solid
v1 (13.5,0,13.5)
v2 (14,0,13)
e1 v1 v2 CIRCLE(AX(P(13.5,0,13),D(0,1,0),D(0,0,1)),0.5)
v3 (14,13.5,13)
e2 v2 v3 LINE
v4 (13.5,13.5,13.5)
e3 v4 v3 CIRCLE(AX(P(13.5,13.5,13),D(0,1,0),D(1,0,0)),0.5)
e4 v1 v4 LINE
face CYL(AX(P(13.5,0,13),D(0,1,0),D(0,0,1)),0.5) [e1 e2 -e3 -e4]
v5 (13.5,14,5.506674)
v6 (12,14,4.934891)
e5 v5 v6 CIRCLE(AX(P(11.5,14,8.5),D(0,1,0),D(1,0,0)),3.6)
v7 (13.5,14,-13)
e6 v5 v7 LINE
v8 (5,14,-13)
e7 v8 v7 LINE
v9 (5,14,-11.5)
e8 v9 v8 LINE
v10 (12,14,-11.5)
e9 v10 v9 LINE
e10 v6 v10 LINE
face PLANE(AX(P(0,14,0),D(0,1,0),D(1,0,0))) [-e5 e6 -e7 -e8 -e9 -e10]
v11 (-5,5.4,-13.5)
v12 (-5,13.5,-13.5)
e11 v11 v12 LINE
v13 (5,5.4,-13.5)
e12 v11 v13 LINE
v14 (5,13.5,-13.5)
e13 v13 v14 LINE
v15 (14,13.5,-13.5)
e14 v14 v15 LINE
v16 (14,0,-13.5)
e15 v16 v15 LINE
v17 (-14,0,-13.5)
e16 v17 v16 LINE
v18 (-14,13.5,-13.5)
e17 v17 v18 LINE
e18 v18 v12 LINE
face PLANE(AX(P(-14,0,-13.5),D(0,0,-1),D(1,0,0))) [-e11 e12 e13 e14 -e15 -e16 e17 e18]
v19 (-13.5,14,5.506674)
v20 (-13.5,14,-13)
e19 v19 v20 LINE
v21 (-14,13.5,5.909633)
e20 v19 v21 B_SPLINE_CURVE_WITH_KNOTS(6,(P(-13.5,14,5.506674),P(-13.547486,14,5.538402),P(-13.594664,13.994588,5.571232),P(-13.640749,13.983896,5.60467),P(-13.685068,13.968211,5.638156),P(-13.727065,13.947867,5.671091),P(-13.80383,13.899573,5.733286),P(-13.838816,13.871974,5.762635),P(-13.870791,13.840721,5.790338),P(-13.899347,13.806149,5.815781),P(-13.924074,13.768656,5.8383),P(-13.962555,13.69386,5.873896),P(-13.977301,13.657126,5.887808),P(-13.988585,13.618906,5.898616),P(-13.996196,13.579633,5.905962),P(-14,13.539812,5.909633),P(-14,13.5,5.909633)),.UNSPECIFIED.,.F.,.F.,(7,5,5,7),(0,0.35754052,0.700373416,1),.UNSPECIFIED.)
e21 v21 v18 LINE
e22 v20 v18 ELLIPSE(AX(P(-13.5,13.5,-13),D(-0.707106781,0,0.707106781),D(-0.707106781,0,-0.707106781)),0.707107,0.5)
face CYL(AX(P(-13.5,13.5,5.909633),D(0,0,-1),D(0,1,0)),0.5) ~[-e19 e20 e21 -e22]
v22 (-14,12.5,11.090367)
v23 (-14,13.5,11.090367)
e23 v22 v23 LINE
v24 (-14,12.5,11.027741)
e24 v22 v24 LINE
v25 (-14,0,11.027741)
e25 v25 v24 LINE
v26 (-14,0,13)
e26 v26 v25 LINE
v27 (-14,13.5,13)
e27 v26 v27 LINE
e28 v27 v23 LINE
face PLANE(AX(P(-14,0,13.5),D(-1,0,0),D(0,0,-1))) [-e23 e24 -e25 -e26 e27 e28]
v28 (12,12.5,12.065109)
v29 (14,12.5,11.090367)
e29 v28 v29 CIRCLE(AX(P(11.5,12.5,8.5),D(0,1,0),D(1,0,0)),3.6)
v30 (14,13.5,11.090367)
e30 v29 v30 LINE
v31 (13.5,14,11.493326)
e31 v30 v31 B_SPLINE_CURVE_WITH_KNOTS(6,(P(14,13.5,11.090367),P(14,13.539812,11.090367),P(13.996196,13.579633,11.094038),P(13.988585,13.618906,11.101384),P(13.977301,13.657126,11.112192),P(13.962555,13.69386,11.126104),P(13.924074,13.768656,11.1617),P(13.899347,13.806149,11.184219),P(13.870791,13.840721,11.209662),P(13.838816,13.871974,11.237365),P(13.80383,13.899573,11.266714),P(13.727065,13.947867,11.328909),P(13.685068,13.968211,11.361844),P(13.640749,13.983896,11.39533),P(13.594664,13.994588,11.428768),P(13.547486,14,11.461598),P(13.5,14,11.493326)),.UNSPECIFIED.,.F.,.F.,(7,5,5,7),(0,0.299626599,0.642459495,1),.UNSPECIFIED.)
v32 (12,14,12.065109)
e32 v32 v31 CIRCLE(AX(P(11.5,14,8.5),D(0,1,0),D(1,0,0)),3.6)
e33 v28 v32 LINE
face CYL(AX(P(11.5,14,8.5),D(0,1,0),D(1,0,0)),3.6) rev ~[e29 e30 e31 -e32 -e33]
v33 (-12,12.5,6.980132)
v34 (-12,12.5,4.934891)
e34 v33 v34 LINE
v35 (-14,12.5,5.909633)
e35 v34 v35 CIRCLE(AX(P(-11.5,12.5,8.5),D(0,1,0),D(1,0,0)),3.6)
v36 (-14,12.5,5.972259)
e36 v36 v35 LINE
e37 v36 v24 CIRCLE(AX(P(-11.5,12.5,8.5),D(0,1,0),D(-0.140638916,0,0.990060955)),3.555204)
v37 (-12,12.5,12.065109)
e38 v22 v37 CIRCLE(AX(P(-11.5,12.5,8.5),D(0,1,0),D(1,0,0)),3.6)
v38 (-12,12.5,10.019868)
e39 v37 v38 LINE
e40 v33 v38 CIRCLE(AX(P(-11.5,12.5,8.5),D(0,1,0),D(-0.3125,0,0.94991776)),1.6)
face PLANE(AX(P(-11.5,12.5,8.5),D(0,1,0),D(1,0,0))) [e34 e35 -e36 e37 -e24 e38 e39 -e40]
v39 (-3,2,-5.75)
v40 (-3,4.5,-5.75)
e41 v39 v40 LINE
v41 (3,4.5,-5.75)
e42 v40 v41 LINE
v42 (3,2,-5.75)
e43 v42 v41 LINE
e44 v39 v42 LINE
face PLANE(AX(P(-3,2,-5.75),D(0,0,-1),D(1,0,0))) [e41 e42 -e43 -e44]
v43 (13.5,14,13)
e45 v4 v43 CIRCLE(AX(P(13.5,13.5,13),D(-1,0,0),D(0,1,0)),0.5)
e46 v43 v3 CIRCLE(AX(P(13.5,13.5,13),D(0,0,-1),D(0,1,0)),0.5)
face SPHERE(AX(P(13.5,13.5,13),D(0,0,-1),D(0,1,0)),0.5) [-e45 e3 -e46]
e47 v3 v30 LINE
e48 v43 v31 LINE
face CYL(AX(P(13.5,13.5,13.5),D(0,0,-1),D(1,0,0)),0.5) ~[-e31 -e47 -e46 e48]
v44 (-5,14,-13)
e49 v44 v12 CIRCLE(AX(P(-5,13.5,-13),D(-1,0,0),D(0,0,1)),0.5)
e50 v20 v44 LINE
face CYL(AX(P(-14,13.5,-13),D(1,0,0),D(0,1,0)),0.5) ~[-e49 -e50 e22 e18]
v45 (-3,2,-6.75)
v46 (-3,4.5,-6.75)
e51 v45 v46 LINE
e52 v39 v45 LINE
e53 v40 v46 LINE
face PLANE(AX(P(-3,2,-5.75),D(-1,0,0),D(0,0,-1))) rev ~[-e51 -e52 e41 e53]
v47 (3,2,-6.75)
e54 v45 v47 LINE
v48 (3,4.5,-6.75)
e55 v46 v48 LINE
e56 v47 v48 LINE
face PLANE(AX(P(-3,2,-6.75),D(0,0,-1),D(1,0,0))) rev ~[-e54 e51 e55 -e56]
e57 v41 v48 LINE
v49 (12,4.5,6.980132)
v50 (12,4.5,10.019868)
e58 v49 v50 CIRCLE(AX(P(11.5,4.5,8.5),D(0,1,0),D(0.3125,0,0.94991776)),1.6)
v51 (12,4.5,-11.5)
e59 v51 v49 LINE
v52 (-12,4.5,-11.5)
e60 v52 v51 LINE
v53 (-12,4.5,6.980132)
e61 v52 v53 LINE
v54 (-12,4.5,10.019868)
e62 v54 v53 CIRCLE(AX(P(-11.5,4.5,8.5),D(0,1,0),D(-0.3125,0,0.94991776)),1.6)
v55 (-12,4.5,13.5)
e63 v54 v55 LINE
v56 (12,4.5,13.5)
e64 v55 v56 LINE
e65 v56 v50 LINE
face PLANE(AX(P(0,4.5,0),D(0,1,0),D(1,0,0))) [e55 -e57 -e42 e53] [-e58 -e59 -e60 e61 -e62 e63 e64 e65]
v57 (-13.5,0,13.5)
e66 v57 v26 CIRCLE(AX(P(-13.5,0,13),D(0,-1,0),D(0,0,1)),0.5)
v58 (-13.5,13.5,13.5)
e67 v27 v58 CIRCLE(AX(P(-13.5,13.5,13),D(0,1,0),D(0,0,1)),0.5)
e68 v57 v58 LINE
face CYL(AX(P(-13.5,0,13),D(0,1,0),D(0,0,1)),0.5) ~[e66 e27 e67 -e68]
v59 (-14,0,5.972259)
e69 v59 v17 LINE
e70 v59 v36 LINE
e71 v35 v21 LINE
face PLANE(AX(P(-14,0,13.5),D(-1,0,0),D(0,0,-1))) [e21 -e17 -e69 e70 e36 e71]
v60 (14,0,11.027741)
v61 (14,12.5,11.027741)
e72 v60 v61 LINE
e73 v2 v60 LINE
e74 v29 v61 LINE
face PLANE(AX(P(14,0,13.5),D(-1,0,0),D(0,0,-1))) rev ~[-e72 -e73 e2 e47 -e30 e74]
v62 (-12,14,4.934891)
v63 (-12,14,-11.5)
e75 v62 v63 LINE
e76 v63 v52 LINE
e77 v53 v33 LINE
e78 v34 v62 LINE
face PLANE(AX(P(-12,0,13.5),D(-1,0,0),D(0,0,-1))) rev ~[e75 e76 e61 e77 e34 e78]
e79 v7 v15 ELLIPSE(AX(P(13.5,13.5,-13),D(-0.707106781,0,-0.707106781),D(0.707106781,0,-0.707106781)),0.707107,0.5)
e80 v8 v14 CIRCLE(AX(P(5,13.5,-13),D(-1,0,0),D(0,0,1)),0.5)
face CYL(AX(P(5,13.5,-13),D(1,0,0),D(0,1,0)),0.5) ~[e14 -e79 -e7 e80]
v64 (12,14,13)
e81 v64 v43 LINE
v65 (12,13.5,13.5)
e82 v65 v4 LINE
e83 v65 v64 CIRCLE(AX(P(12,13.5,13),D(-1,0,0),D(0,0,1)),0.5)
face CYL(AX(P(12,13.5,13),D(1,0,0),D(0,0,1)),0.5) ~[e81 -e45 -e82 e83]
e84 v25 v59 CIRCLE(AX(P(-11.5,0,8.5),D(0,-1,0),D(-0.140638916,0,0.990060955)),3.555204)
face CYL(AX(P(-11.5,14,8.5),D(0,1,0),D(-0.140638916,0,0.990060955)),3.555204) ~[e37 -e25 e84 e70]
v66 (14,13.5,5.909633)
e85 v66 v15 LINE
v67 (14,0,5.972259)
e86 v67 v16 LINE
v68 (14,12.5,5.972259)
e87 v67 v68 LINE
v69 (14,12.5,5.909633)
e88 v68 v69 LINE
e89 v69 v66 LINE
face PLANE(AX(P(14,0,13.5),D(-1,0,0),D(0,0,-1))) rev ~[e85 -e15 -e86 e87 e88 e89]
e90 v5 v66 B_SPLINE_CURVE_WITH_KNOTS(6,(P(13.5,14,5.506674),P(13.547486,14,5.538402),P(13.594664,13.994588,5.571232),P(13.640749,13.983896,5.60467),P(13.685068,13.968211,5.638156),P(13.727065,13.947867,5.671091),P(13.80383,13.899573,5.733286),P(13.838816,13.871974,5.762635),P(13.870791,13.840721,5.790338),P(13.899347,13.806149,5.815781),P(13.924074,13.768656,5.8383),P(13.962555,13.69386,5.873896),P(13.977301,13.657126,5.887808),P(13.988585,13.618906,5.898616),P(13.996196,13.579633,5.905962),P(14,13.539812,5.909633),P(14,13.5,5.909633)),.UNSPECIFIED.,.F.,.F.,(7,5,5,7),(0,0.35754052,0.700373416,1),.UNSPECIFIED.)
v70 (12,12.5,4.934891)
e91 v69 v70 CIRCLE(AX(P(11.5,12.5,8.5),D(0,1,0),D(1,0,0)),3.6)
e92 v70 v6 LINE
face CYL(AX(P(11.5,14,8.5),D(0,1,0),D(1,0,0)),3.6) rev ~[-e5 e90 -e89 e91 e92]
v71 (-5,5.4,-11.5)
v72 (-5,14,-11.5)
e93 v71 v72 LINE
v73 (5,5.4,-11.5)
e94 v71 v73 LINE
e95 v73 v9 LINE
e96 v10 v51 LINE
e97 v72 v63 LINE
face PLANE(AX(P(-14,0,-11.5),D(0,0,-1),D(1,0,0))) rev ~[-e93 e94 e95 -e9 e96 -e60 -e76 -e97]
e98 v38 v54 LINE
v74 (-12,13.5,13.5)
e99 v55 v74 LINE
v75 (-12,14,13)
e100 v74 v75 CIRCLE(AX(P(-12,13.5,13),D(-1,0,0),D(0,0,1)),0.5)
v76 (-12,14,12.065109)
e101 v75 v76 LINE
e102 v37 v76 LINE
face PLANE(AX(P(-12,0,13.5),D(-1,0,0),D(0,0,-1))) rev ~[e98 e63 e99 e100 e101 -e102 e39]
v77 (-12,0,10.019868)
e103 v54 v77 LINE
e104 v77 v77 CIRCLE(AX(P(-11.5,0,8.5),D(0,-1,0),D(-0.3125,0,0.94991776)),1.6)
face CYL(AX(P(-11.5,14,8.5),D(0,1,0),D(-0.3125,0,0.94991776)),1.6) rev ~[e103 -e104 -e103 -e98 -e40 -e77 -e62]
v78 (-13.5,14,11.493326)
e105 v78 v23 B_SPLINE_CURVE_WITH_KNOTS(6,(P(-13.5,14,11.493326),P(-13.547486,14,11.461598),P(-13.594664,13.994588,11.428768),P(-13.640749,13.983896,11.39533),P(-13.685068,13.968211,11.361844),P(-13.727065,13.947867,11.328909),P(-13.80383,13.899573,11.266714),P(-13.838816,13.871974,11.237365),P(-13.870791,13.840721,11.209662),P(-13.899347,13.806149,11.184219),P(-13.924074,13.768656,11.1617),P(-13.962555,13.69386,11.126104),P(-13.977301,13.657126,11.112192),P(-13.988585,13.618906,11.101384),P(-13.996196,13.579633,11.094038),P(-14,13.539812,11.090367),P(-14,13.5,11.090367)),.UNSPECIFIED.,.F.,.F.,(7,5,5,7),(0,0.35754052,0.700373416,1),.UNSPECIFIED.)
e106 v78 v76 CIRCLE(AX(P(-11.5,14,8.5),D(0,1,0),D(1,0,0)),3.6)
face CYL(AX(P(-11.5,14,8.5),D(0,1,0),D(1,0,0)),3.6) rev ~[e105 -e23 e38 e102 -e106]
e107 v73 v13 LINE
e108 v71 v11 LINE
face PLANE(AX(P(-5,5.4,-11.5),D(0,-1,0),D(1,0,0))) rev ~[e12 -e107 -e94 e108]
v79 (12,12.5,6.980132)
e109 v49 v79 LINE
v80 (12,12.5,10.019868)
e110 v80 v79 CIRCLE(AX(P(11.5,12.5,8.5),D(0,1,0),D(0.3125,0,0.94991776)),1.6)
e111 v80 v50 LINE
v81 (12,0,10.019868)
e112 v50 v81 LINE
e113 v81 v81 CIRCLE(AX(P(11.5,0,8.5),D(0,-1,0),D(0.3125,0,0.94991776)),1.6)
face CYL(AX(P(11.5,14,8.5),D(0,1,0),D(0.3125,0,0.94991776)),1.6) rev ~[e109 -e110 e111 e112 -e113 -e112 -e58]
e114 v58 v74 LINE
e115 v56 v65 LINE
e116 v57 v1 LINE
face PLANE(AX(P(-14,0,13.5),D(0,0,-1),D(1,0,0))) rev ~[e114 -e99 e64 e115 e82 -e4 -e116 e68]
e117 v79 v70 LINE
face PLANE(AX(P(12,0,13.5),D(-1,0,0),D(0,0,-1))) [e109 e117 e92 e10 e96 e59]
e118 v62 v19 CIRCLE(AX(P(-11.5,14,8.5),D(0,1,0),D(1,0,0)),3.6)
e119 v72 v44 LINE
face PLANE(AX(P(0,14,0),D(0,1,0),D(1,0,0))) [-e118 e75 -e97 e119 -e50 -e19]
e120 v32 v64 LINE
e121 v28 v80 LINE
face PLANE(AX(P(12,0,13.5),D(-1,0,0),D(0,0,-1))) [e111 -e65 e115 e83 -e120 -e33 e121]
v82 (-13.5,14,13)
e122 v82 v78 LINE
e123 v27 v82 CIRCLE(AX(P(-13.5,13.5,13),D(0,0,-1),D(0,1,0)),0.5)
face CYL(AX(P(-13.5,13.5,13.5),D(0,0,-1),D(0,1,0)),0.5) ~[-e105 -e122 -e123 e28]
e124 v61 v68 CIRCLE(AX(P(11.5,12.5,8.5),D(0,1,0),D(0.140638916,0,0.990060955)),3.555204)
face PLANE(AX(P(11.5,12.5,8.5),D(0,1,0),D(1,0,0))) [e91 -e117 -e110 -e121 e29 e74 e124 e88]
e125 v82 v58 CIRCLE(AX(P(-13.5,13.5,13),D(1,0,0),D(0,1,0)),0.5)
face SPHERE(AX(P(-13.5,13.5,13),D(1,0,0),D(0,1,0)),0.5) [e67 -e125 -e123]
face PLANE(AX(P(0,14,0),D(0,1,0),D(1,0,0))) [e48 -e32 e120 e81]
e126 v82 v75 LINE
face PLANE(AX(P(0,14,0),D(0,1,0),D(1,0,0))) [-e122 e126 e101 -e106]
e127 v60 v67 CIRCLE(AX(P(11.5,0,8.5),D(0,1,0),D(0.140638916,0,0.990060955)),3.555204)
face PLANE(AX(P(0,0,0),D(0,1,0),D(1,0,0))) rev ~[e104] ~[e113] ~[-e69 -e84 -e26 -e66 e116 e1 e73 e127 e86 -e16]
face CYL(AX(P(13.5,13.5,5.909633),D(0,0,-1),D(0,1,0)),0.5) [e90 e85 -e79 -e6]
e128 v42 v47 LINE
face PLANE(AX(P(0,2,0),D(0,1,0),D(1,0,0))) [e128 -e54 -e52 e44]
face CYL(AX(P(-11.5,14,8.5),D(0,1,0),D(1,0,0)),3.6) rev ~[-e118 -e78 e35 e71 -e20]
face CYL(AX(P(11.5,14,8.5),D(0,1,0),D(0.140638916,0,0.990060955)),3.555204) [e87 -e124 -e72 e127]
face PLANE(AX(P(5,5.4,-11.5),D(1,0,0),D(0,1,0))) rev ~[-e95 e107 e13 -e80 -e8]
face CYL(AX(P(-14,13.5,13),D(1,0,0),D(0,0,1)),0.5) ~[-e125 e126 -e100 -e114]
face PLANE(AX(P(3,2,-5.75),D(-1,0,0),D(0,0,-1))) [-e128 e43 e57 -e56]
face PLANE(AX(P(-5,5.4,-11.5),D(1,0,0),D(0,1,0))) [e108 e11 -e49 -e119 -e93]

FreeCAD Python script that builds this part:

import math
import FreeCAD as App
import Part
import Sketcher
Q = App.Units.Quantity


def edges_at(feature, points):
    """Names of the edges that pass closest to the given points."""
    edges = feature.Shape.Edges
    near = lambda p: min(range(len(edges)), key=lambda i: edges[i].distToShape(Part.Vertex(*p))[0])
    return sorted({f"Edge{near(p) + 1}" for p in points})


def faces_at(feature, points):
    """Names of the faces that lie closest to the given points."""
    faces = feature.Shape.Faces
    near = lambda p: min(range(len(faces)), key=lambda i: faces[i].distToShape(Part.Vertex(*p))[0])
    return sorted({f"Face{near(p) + 1}" for p in points})


def add_polygon(sketch, points):
    """Adds a closed chain of lines whose ends are joined by coincident constraints."""
    first, n = sketch.GeometryCount, len(points)
    for a, b in zip(points, points[1:] + points[:1]):
        sketch.addGeometry(Part.LineSegment(App.Vector(*a, 0), App.Vector(*b, 0)), False)
    for i in range(n):
        sketch.addConstraint(Sketcher.Constraint("Coincident", first + i, 2, first + (i + 1) % n, 1))

doc = App.newDocument("Part")
body = doc.addObject("PartDesign::Body", "Body")

sketch1 = body.newObject("Sketcher::SketchObject", "Sketch")
sketch1.AttachmentSupport = (doc.getObject("XZ_Plane"), [""])
sketch1.MapMode = "FlatFace"
add_polygon(sketch1, [(-14, -14), (-14, 14), (14, 14), (14, -14)])
sketch1.addConstraint([
    Sketcher.Constraint("Vertical", 0),
    Sketcher.Constraint("Horizontal", 1),
    Sketcher.Constraint("Vertical", 2),
    Sketcher.Constraint("Horizontal", 3),
    Sketcher.Constraint("Symmetric", 0, 2, 2, 2, -1, 1),
    Sketcher.Constraint("DistanceX", 1, 1, 1, 2, Q("28 mm")),
    Sketcher.Constraint("DistanceY", 0, 1, 0, 2, Q("27 mm")),
])
pad1 = body.newObject("PartDesign::Pad", "Pad")
pad1.Profile = sketch1
pad1.Length = 14
pad1.Reversed = True
doc.recompute()

thickness = body.newObject("PartDesign::Thickness", "Thickness")
thickness.Base = (pad1, faces_at(pad1, [(0, 14, 0)]))
thickness.Value = 2
thickness.Reversed = True
thickness.Join = "Intersection"

sketch2 = body.newObject("Sketcher::SketchObject", "Sketch001")
sketch2.AttachmentSupport = (doc.getObject("XZ_Plane"), [""])
sketch2.MapMode = "FlatFace"
sketch2.AttachmentOffset = App.Placement(App.Vector(0, 0, -2), App.Rotation())
add_polygon(sketch2, [(-12, -11.5), (-12, 11.5), (12, 11.5), (12, -11.5)])
add_polygon(sketch2, [(3, -5.8), (-3, -5.8), (-3, -6.8), (3, -6.8)])
sketch2.addConstraint([
    Sketcher.Constraint("Vertical", 0),
    Sketcher.Constraint("Horizontal", 1),
    Sketcher.Constraint("Vertical", 2),
    Sketcher.Constraint("Horizontal", 3),
    Sketcher.Constraint("Horizontal", 4),
    Sketcher.Constraint("Vertical", 5),
    Sketcher.Constraint("Horizontal", 6),
    Sketcher.Constraint("Vertical", 7),
    Sketcher.Constraint("Symmetric", 0, 2, 2, 2, -1, 1),
    Sketcher.Constraint("DistanceX", 1, 1, 1, 2, Q("24 mm")),
    Sketcher.Constraint("DistanceX", 4, 2, 4, 1, Q("6 mm")),
    Sketcher.Constraint("DistanceY", 0, 1, 0, 2, Q("23 mm")),
    Sketcher.Constraint("DistanceY", 5, 2, 5, 1, Q("1 mm")),
    Sketcher.Constraint("DistanceX", 4, 2, -1, 1, Q("3 mm")),
    Sketcher.Constraint("DistanceY", 4, 2, -1, 1, Q("5.75 mm")),
])
pad2 = body.newObject("PartDesign::Pad", "Pad001")
pad2.Profile = sketch2
pad2.Length = 2.5
pad2.Reversed = True

sketch3 = body.newObject("Sketcher::SketchObject", "Sketch002")
sketch3.AttachmentSupport = (doc.getObject("XY_Plane"), [""])
sketch3.MapMode = "FlatFace"
sketch3.AttachmentOffset = App.Placement(App.Vector(0, 0, 13.5), App.Rotation())
add_polygon(sketch3, [(-12, 14), (-12, 4), (12, 4), (12, 14)])
sketch3.addConstraint([
    Sketcher.Constraint("Vertical", 0),
    Sketcher.Constraint("Horizontal", 1),
    Sketcher.Constraint("Vertical", 2),
    Sketcher.Constraint("Horizontal", 3),
    Sketcher.Constraint("DistanceX", 1, 1, 1, 2, Q("24 mm")),
    Sketcher.Constraint("DistanceY", 0, 2, 0, 1, Q("9.5 mm")),
    Sketcher.Constraint("DistanceX", 0, 2, -1, 1, Q("12 mm")),
    Sketcher.Constraint("DistanceY", -1, 1, 2, 2, Q("14 mm")),
])
pocket1 = body.newObject("PartDesign::Pocket", "Pocket")
pocket1.Profile = sketch3
pocket1.Type = "UpToFirst"

sketch4 = body.newObject("Sketcher::SketchObject", "Sketch003")
sketch4.AttachmentSupport = (doc.getObject("XZ_Plane"), [""])
sketch4.MapMode = "FlatFace"
sketch4.AttachmentOffset = App.Placement(App.Vector(0, 0, -14), App.Rotation())
sketch4.addGeometry(Part.Circle(App.Vector(-11.5, 8.5, 0), App.Vector(0, 0, 1), 1.6), False)
sketch4.addConstraint([
    Sketcher.Constraint("Diameter", 0, Q("3.2 mm")),
    Sketcher.Constraint("DistanceX", 0, 3, -1, 1, Q("11.5 mm")),
    Sketcher.Constraint("DistanceY", -1, 1, 0, 3, Q("8.5 mm")),
])
pocket2 = body.newObject("PartDesign::Pocket", "Pocket001")
pocket2.Profile = sketch4
pocket2.Length = 14
pocket2.Reversed = True

sketch5 = body.newObject("Sketcher::SketchObject", "Sketch004")
sketch5.AttachmentSupport = (doc.getObject("XZ_Plane"), [""])
sketch5.MapMode = "FlatFace"
sketch5.AttachmentOffset = App.Placement(App.Vector(0, 0, -14), App.Rotation())
sketch5.addGeometry(Part.Circle(App.Vector(11.5, 8.5, 0), App.Vector(0, 0, 1), 1.6), False)
sketch5.addConstraint([
    Sketcher.Constraint("Diameter", 0, Q("3.2 mm")),
    Sketcher.Constraint("DistanceX", -1, 1, 0, 3, Q("11.5 mm")),
    Sketcher.Constraint("DistanceY", -1, 1, 0, 3, Q("8.5 mm")),
])
pocket3 = body.newObject("PartDesign::Pocket", "Pocket002")
pocket3.Profile = sketch5
pocket3.Length = 14
pocket3.Reversed = True

sketch6 = body.newObject("Sketcher::SketchObject", "Sketch005")
sketch6.AttachmentSupport = (doc.getObject("XZ_Plane"), [""])
sketch6.MapMode = "FlatFace"
sketch6.AttachmentOffset = App.Placement(App.Vector(0, 0, -14), App.Rotation())
sketch6.addGeometry([
    Part.LineSegment(App.Vector(12, 5, 0), App.Vector(12, 7, 0)),
    Part.ArcOfCircle(Part.Circle(App.Vector(11.5, 8.5, 0), App.Vector(0, 0, 1), 1.6), math.radians(-72), math.radians(72)),
    Part.LineSegment(App.Vector(12, 10, 0), App.Vector(12, 12, 0)),
    Part.ArcOfCircle(Part.Circle(App.Vector(11.5, 8.5, 0), App.Vector(0, 0, 1), 3.6), math.radians(-82), math.radians(82)),
    Part.LineSegment(App.Vector(-12, 7, 0), App.Vector(-12, 5, 0)),
    Part.ArcOfCircle(Part.Circle(App.Vector(-11.5, 8.5, 0), App.Vector(0, 0, 1), 3.6), math.radians(98), math.radians(262)),
    Part.LineSegment(App.Vector(-12, 12, 0), App.Vector(-12, 10, 0)),
    Part.ArcOfCircle(Part.Circle(App.Vector(-11.5, 8.5, 0), App.Vector(0, 0, 1), 1.6), math.radians(108), math.radians(252)),
], False)
sketch6.addConstraint([
    Sketcher.Constraint("Coincident", 0, 2, 1, 1),
    Sketcher.Constraint("Coincident", 1, 2, 2, 1),
    Sketcher.Constraint("Coincident", 2, 2, 3, 2),
    Sketcher.Constraint("Coincident", 3, 1, 0, 1),
    Sketcher.Constraint("Coincident", 4, 2, 5, 2),
    Sketcher.Constraint("Coincident", 5, 1, 6, 1),
    Sketcher.Constraint("Coincident", 6, 2, 7, 1),
    Sketcher.Constraint("Coincident", 7, 2, 4, 1),
    Sketcher.Constraint("Vertical", 0),
    Sketcher.Constraint("Vertical", 2),
    Sketcher.Constraint("Vertical", 4),
    Sketcher.Constraint("Vertical", 6),
    Sketcher.Constraint("Coincident", 3, 3, 1, 3),
    Sketcher.Constraint("Coincident", 7, 3, 5, 3),
    Sketcher.Constraint("Equal", 3, 5),
    Sketcher.Constraint("Equal", 1, 7),
    Sketcher.Constraint("Symmetric", 1, 3, 5, 3, -2),
    Sketcher.Constraint("Horizontal", 3, 1, 4, 2),
    Sketcher.Constraint("Horizontal", 2, 2, 5, 1),
    Sketcher.Constraint("Vertical", 0, 2, 1, 2),
    Sketcher.Constraint("Radius", 1, Q("1.6 mm")),
    Sketcher.Constraint("DistanceY", 0, 1, 0, 2, Q("2 mm")),
    Sketcher.Constraint("DistanceX", -1, 1, 0, 2, Q("12 mm")),
    Sketcher.Constraint("DistanceX", 5, 3, 1, 3, Q("23 mm")),
    Sketcher.Constraint("DistanceY", -1, 1, 1, 3, Q("8.5 mm")),
])
pad3 = body.newObject("PartDesign::Pad", "Pad002")
pad3.Profile = sketch6
pad3.Length = 14

sketch7 = body.newObject("Sketcher::SketchObject", "Sketch006")
sketch7.AttachmentSupport = (doc.getObject("XY_Plane"), [""])
sketch7.MapMode = "FlatFace"
sketch7.AttachmentOffset = App.Placement(App.Vector(0, 0, -11.5), App.Rotation())
add_polygon(sketch7, [(-5, 14), (-5, 5), (5, 5), (5, 14)])
sketch7.addConstraint([
    Sketcher.Constraint("Vertical", 0),
    Sketcher.Constraint("Horizontal", 1),
    Sketcher.Constraint("Vertical", 2),
    Sketcher.Constraint("Horizontal", 3),
    Sketcher.Constraint("DistanceX", 1, 1, 1, 2, Q("10 mm")),
    Sketcher.Constraint("DistanceY", 0, 2, 0, 1, Q("8.6 mm")),
    Sketcher.Constraint("DistanceX", 0, 2, -1, 1, Q("5 mm")),
    Sketcher.Constraint("DistanceY", -1, 1, 2, 2, Q("14 mm")),
])
pocket4 = body.newObject("PartDesign::Pocket", "Pocket003")
pocket4.Profile = sketch7
pocket4.Type = "UpToFirst"

sketch8 = body.newObject("Sketcher::SketchObject", "Sketch007")
sketch8.AttachmentSupport = (doc.getObject("XZ_Plane"), [""])
sketch8.MapMode = "FlatFace"
sketch8.AttachmentOffset = App.Placement(App.Vector(0, 0, -14), App.Rotation())
sketch8.addGeometry([
    Part.Circle(App.Vector(11.5, 8.5, 0), App.Vector(0, 0, 1), 3.6),
    Part.Circle(App.Vector(-11.5, 8.5, 0), App.Vector(0, 0, 1), 3.6),
], False)
sketch8.addConstraint([
    Sketcher.Constraint("Equal", 0, 1),
    Sketcher.Constraint("Symmetric", 0, 3, 1, 3, -2),
    Sketcher.Constraint("Diameter", 0, Q("7.2 mm")),
    Sketcher.Constraint("DistanceX", 1, 3, 0, 3, Q("23 mm")),
    Sketcher.Constraint("DistanceY", -1, 1, 0, 3, Q("8.5 mm")),
])
pocket5 = body.newObject("PartDesign::Pocket", "Pocket004")
pocket5.Profile = sketch8
pocket5.Length = 1.5
pocket5.Reversed = True
doc.recompute()

fillet = body.newObject("PartDesign::Fillet", "Fillet")
fillet.Base = (pocket5, edges_at(pocket5, [
    (14, 14, 12.295),
    (9.5, 14, -13.5),
    (-13, 14, 13.5),
    (-14, 14, -3.795),
    (14, 14, -3.795),
    (-14, 14, 12.295),
    (13, 14, 13.5),
    (-14, 7, 13.5),
    (14, 7, 13.5),
    (-9.5, 14, -13.5),
]))
fillet.Radius = 0.5

doc.recompute()
